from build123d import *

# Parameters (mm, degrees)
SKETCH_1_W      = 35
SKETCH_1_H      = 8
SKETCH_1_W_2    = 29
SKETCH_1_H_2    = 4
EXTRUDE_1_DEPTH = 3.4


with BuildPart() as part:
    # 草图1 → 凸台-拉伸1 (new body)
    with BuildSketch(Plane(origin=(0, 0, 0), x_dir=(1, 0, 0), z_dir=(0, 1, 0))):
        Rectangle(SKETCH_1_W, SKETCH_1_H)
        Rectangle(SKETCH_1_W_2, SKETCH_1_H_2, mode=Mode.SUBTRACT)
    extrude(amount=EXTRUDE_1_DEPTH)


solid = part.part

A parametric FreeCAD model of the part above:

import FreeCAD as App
import Part
import Sketcher

V = App.Vector


def add_polygon(sketch, points):
    """Adds a closed chain of lines whose ends are joined by coincident constraints."""
    first, n = sketch.GeometryCount, len(points)
    for a, b in zip(points, points[1:] + points[:1]):
        sketch.addGeometry(Part.LineSegment(App.Vector(*a, 0), App.Vector(*b, 0)), False)
    for i in range(n):
        sketch.addConstraint(Sketcher.Constraint("Coincident", first + i, 2, first + (i + 1) % n, 1))

doc = App.newDocument("Part")
body = doc.addObject("PartDesign::Body", "Body")

sketch1 = doc.addObject("Sketcher::SketchObject", "Sketch")
body.addObject(sketch1)
sketch1.AttachmentSupport = (doc.XZ_Plane, [""])
sketch1.MapMode = "FlatFace"
add_polygon(sketch1, [(-17.5, -4), (-17.5, 4), (17.5, 4), (17.5, -4)])
add_polygon(sketch1, [(14.5, 2), (-14.5, 2), (-14.5, -2), (14.5, -2)])
sketch1.addConstraint([
    Sketcher.Constraint("Vertical", 0),
    Sketcher.Constraint("Horizontal", 1),
    Sketcher.Constraint("Vertical", 2),
    Sketcher.Constraint("Horizontal", 3),
    Sketcher.Constraint("Horizontal", 4),
    Sketcher.Constraint("Vertical", 5),
    Sketcher.Constraint("Horizontal", 6),
    Sketcher.Constraint("Vertical", 7),
    Sketcher.Constraint("Symmetric", 0, 2, 2, 2, -1, 1),
    Sketcher.Constraint("Symmetric", 4, 2, 6, 2, -1, 1),
    Sketcher.Constraint("DistanceX", 1, 1, 1, 2, 35.0),
    Sketcher.Constraint("DistanceX", 4, 2, 4, 1, 29.0),
    Sketcher.Constraint("DistanceY", 0, 1, 0, 2, 8.0),
    Sketcher.Constraint("DistanceY", 5, 2, 5, 1, 4.0),
])
pad1 = doc.addObject("PartDesign::Pad", "Pad")
body.addObject(pad1)
pad1.Profile = sketch1
pad1.Length = 3.4
pad1.Reversed = True

doc.recompute()
